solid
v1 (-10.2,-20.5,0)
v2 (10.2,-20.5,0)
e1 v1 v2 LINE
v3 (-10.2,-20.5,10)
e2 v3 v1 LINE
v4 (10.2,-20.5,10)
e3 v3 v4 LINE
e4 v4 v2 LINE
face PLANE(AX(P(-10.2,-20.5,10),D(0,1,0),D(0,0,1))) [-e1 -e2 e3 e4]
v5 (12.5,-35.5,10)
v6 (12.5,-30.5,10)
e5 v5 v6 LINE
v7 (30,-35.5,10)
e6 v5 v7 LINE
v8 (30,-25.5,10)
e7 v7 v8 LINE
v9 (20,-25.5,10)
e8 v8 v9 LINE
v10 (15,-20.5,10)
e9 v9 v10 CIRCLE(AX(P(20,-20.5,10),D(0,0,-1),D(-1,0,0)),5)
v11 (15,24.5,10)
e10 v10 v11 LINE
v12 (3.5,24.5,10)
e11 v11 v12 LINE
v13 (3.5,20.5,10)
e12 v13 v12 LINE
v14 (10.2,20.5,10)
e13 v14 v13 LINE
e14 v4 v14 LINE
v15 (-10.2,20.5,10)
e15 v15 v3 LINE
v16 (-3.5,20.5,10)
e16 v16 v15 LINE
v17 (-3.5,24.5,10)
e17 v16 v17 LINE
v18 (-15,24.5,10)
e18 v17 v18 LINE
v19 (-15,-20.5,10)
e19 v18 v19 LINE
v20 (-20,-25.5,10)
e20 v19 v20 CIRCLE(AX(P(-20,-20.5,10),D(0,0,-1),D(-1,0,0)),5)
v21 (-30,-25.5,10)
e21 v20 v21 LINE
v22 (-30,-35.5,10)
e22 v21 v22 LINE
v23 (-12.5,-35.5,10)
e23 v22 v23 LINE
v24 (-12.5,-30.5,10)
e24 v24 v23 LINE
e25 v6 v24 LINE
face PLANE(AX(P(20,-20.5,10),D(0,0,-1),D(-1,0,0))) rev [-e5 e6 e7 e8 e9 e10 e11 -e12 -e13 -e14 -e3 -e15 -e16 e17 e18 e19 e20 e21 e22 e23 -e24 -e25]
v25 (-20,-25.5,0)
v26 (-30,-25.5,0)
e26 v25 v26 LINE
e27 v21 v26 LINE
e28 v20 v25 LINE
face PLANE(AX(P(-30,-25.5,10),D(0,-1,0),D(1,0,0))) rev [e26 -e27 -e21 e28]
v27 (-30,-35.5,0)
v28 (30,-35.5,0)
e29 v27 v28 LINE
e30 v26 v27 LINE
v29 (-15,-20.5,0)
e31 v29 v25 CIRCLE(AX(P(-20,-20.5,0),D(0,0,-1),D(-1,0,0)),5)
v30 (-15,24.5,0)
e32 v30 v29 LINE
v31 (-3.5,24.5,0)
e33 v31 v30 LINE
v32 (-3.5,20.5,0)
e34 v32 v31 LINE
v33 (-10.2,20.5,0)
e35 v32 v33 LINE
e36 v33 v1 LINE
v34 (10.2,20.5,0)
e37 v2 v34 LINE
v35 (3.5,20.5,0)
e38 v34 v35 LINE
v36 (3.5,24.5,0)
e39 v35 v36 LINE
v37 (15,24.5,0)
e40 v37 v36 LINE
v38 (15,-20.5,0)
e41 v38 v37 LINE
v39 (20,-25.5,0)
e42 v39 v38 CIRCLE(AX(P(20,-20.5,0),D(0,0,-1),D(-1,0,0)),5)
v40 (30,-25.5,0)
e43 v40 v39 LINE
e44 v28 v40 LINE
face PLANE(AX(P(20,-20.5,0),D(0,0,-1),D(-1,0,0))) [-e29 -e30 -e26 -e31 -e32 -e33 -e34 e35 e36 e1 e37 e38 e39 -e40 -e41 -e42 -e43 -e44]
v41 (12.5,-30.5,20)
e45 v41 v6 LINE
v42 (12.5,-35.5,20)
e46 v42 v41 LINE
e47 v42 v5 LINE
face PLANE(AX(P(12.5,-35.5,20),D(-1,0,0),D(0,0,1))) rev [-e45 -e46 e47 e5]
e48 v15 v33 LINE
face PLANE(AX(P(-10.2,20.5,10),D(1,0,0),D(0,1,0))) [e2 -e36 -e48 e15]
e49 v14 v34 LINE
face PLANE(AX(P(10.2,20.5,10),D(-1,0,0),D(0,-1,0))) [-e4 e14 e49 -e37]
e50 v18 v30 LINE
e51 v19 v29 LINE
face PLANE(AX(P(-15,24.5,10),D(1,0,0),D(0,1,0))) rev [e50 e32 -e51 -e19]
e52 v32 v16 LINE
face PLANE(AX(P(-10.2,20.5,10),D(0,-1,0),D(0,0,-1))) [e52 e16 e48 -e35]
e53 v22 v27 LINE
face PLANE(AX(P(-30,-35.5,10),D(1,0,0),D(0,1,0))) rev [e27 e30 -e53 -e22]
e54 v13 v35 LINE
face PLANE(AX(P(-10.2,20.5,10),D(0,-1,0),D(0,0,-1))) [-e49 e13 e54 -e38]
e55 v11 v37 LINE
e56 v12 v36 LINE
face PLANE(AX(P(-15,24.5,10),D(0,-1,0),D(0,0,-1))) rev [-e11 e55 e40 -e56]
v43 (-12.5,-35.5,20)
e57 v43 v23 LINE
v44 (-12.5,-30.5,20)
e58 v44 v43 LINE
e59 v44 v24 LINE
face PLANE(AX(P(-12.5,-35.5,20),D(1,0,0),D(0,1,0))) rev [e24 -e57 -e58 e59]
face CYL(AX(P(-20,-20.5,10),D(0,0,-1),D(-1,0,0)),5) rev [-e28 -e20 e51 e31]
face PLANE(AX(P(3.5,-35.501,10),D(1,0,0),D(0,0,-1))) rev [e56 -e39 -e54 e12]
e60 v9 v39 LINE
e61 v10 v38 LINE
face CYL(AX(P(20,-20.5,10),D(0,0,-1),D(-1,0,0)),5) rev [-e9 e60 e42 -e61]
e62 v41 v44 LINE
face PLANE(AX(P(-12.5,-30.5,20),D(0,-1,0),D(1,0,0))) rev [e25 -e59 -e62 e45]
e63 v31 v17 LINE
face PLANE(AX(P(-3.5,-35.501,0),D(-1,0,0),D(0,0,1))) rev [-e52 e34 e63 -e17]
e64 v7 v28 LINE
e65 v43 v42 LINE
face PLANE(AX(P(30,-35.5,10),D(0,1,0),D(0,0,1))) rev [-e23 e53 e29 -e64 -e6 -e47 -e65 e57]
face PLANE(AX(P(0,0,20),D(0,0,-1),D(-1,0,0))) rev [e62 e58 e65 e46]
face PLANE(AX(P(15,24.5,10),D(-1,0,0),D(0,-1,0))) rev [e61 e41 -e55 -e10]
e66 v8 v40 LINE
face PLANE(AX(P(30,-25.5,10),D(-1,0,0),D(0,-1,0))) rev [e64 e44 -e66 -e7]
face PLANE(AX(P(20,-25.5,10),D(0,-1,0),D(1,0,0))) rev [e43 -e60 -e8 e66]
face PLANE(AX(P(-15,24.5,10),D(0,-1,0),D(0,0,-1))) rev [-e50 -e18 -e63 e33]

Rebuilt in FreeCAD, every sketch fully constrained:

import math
import FreeCAD as App
import Part
import Sketcher
from FreeCAD import Vector

doc = App.newDocument("Part")
body = doc.addObject("PartDesign::Body", "Body")

# Sketch on XY plane
sketch1 = body.newObject("Sketcher::SketchObject", "Sketch")
sketch1.AttachmentSupport = (doc.getObject("XY_Plane"), [""])
sketch1.MapMode = "FlatFace"
sketch1.addGeometry([
    Part.LineSegment(Vector(-15, 24.5, 0), Vector(-15, -20.5, 0)),  # 0
    Part.ArcOfCircle(Part.Circle(Vector(-20, -20.5, 0), Vector(0, 0, 1), 5), math.radians(-90), math.radians(0)),  # 1
    Part.LineSegment(Vector(-20, -25.5, 0), Vector(-30, -25.5, 0)),  # 2
    Part.LineSegment(Vector(-30, -25.5, 0), Vector(-30, -35.5, 0)),  # 3
    Part.LineSegment(Vector(-30, -35.5, 0), Vector(30, -35.5, 0)),  # 4
    Part.LineSegment(Vector(30, -35.5, 0), Vector(30, -25.5, 0)),  # 5
    Part.LineSegment(Vector(30, -25.5, 0), Vector(20, -25.5, 0)),  # 6
    Part.ArcOfCircle(Part.Circle(Vector(20, -20.5, 0), Vector(0, 0, 1), 5), math.radians(180), math.radians(270)),  # 7
    Part.LineSegment(Vector(15, -20.5, 0), Vector(15, 24.5, 0)),  # 8
    Part.LineSegment(Vector(15, 24.5, 0), Vector(-15, 24.5, 0)),  # 9
    Part.LineSegment(Vector(10.2, -20.5, 0), Vector(-10.2, -20.5, 0)),  # 10
    Part.LineSegment(Vector(-10.2, -20.5, 0), Vector(-10.2, 20.5, 0)),  # 11
    Part.LineSegment(Vector(-10.2, 20.5, 0), Vector(10.2, 20.5, 0)),  # 12
    Part.LineSegment(Vector(10.2, 20.5, 0), Vector(10.2, -20.5, 0)),  # 13
], False)
sketch1.addConstraint([
    Sketcher.Constraint("Tangent", 0, 2, 1, 2),
    Sketcher.Constraint("Tangent", 1, 1, 2, 1),
    Sketcher.Constraint("Coincident", 2, 2, 3, 1),
    Sketcher.Constraint("Coincident", 3, 2, 4, 1),
    Sketcher.Constraint("Coincident", 4, 2, 5, 1),
    Sketcher.Constraint("Coincident", 5, 2, 6, 1),
    Sketcher.Constraint("Tangent", 6, 2, 7, 2),
    Sketcher.Constraint("Tangent", 7, 1, 8, 1),
    Sketcher.Constraint("Coincident", 8, 2, 9, 1),
    Sketcher.Constraint("Coincident", 9, 2, 0, 1),
    Sketcher.Constraint("Coincident", 10, 2, 11, 1),
    Sketcher.Constraint("Coincident", 11, 2, 12, 1),
    Sketcher.Constraint("Coincident", 12, 2, 13, 1),
    Sketcher.Constraint("Coincident", 13, 2, 10, 1),
    Sketcher.Constraint("Vertical", 0),
    Sketcher.Constraint("Horizontal", 2),
    Sketcher.Constraint("Vertical", 3),
    Sketcher.Constraint("Horizontal", 4),
    Sketcher.Constraint("Vertical", 5),
    Sketcher.Constraint("Horizontal", 6),
    Sketcher.Constraint("Vertical", 8),
    Sketcher.Constraint("Horizontal", 9),
    Sketcher.Constraint("Horizontal", 10),
    Sketcher.Constraint("Vertical", 11),
    Sketcher.Constraint("Horizontal", 12),
    Sketcher.Constraint("Vertical", 13),
    Sketcher.Constraint("Equal", 1, 7),
    Sketcher.Constraint("Symmetric", 10, 2, 12, 2, -1, 1),
    Sketcher.Constraint("Symmetric", 1, 3, 7, 3, -2),
    Sketcher.Constraint("Horizontal", 7, 1, 10, 2),
    Sketcher.Constraint("Equal", 2, 6),
    Sketcher.Constraint("Equal", 6, 3),
    Sketcher.Constraint("Radius", 1, 5.0),
    Sketcher.Constraint("DistanceX", 2, 2, 2, 1, 10.0),
    Sketcher.Constraint("DistanceX", 4, 1, 4, 2, 60.0),
    Sketcher.Constraint("DistanceY", 0, 2, 0, 1, 45.0),
    Sketcher.Constraint("DistanceY", 11, 1, 11, 2, 41.0),
    Sketcher.Constraint("DistanceX", 10, 2, 10, 1, 20.4),
])
pad1 = body.newObject("PartDesign::Pad", "Pad")
pad1.Profile = sketch1
pad1.Length = 10

# Sketch on XZ plane
sketch2 = body.newObject("Sketcher::SketchObject", "Sketch001")
sketch2.AttachmentSupport = (doc.getObject("XZ_Plane"), [""])
sketch2.MapMode = "FlatFace"
sketch2.AttachmentOffset = App.Placement(Vector(0, 0, -24.5), App.Rotation())
sketch2.addGeometry([
    Part.LineSegment(Vector(-3.5, 0, 0), Vector(-3.5, 10, 0)),
    Part.LineSegment(Vector(-3.5, 10, 0), Vector(3.5, 10, 0)),
    Part.LineSegment(Vector(3.5, 10, 0), Vector(3.5, 0, 0)),
    Part.LineSegment(Vector(3.5, 0, 0), Vector(-3.5, 0, 0)),
], False)
sketch2.addConstraint([
    Sketcher.Constraint("Coincident", 0, 2, 1, 1),
    Sketcher.Constraint("Coincident", 1, 2, 2, 1),
    Sketcher.Constraint("Coincident", 2, 2, 3, 1),
    Sketcher.Constraint("Coincident", 3, 2, 0, 1),
    Sketcher.Constraint("Vertical", 0),
    Sketcher.Constraint("Horizontal", 1),
    Sketcher.Constraint("Vertical", 2),
    Sketcher.Constraint("Horizontal", 3),
    Sketcher.Constraint("Symmetric", 2, 2, 3, 2, -1, 1),
    Sketcher.Constraint("DistanceX", 1, 1, 1, 2, 7.0),
    Sketcher.Constraint("DistanceY", 0, 1, 0, 2, 10.0),
])
pocket1 = body.newObject("PartDesign::Pocket", "Pocket")
pocket1.Profile = sketch2
pocket1.Type = "UpToFirst"
pocket1.Reversed = True

# Sketch on XY plane
sketch3 = body.newObject("Sketcher::SketchObject", "Sketch002")
sketch3.AttachmentSupport = (doc.getObject("XY_Plane"), [""])
sketch3.MapMode = "FlatFace"
sketch3.AttachmentOffset = App.Placement(Vector(0, 0, 10), App.Rotation())
sketch3.addGeometry([
    Part.LineSegment(Vector(-12.5, -30.5, 0), Vector(-12.5, -35.5, 0)),
    Part.LineSegment(Vector(-12.5, -35.5, 0), Vector(12.5, -35.5, 0)),
    Part.LineSegment(Vector(12.5, -35.5, 0), Vector(12.5, -30.5, 0)),
    Part.LineSegment(Vector(12.5, -30.5, 0), Vector(-12.5, -30.5, 0)),
], False)
sketch3.addConstraint([
    Sketcher.Constraint("Coincident", 0, 2, 1, 1),
    Sketcher.Constraint("Coincident", 1, 2, 2, 1),
    Sketcher.Constraint("Coincident", 2, 2, 3, 1),
    Sketcher.Constraint("Coincident", 3, 2, 0, 1),
    Sketcher.Constraint("Vertical", 0),
    Sketcher.Constraint("Horizontal", 1),
    Sketcher.Constraint("Vertical", 2),
    Sketcher.Constraint("Horizontal", 3),
    Sketcher.Constraint("DistanceX", 1, 1, 1, 2, 25.0),
    Sketcher.Constraint("DistanceY", 0, 2, 0, 1, 5.0),
    Sketcher.Constraint("DistanceX", 0, 2, -1, 1, 12.5),
    Sketcher.Constraint("DistanceY", 0, 2, -1, 1, 35.5),
])
pad2 = body.newObject("PartDesign::Pad", "Pad001")
pad2.Profile = sketch3
pad2.Length = 10

doc.recompute()
